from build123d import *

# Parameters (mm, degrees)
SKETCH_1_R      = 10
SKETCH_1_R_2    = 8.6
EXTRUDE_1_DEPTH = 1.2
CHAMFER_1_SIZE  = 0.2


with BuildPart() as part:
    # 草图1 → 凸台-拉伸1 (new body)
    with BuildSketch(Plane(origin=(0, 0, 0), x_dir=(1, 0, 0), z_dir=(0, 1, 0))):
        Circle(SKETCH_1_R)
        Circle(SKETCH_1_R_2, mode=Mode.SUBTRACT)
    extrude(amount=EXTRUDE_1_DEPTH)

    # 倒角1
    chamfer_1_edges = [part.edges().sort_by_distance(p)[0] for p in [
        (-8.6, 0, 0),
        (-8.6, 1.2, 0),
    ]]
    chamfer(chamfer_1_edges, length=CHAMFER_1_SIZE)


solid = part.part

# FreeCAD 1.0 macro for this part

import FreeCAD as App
import Part
import Sketcher

V = App.Vector
Q = App.Units.Quantity


def edges_at(feature, points):
    """Names of the edges that pass closest to the given points."""
    edges = feature.Shape.Edges
    near = lambda p: min(range(len(edges)), key=lambda i: edges[i].distToShape(Part.Vertex(*p))[0])
    return sorted({f"Edge{near(p) + 1}" for p in points})

doc = App.newDocument("Part")
body = doc.addObject("PartDesign::Body", "Body")

sketch1 = body.newObject("Sketcher::SketchObject", "Sketch")
sketch1.AttachmentSupport = (doc.getObject("XZ_Plane"), [""])
sketch1.MapMode = "FlatFace"
sketch1.addGeometry([
    Part.Circle(V(0, 0, 0), V(0, 0, 1), 10),
    Part.Circle(V(0, 0, 0), V(0, 0, 1), 8.6),
], False)
sketch1.addConstraint([
    Sketcher.Constraint("Coincident", 0, 3, -1, 1),
    Sketcher.Constraint("Coincident", 1, 3, -1, 1),
    Sketcher.Constraint("Diameter", 0, Q("20 mm")),
    Sketcher.Constraint("Diameter", 1, Q("17.2 mm")),
])
pad1 = body.newObject("PartDesign::Pad", "Pad")
pad1.Profile = sketch1
pad1.Length = 1.2
pad1.Reversed = True
doc.recompute()

chamfer = body.newObject("PartDesign::Chamfer", "Chamfer")
chamfer.Base = (pad1, edges_at(pad1, [(-8.6, 0, 0), (-8.6, 1.2, 0)]))
chamfer.Size = 0.2

doc.recompute()
